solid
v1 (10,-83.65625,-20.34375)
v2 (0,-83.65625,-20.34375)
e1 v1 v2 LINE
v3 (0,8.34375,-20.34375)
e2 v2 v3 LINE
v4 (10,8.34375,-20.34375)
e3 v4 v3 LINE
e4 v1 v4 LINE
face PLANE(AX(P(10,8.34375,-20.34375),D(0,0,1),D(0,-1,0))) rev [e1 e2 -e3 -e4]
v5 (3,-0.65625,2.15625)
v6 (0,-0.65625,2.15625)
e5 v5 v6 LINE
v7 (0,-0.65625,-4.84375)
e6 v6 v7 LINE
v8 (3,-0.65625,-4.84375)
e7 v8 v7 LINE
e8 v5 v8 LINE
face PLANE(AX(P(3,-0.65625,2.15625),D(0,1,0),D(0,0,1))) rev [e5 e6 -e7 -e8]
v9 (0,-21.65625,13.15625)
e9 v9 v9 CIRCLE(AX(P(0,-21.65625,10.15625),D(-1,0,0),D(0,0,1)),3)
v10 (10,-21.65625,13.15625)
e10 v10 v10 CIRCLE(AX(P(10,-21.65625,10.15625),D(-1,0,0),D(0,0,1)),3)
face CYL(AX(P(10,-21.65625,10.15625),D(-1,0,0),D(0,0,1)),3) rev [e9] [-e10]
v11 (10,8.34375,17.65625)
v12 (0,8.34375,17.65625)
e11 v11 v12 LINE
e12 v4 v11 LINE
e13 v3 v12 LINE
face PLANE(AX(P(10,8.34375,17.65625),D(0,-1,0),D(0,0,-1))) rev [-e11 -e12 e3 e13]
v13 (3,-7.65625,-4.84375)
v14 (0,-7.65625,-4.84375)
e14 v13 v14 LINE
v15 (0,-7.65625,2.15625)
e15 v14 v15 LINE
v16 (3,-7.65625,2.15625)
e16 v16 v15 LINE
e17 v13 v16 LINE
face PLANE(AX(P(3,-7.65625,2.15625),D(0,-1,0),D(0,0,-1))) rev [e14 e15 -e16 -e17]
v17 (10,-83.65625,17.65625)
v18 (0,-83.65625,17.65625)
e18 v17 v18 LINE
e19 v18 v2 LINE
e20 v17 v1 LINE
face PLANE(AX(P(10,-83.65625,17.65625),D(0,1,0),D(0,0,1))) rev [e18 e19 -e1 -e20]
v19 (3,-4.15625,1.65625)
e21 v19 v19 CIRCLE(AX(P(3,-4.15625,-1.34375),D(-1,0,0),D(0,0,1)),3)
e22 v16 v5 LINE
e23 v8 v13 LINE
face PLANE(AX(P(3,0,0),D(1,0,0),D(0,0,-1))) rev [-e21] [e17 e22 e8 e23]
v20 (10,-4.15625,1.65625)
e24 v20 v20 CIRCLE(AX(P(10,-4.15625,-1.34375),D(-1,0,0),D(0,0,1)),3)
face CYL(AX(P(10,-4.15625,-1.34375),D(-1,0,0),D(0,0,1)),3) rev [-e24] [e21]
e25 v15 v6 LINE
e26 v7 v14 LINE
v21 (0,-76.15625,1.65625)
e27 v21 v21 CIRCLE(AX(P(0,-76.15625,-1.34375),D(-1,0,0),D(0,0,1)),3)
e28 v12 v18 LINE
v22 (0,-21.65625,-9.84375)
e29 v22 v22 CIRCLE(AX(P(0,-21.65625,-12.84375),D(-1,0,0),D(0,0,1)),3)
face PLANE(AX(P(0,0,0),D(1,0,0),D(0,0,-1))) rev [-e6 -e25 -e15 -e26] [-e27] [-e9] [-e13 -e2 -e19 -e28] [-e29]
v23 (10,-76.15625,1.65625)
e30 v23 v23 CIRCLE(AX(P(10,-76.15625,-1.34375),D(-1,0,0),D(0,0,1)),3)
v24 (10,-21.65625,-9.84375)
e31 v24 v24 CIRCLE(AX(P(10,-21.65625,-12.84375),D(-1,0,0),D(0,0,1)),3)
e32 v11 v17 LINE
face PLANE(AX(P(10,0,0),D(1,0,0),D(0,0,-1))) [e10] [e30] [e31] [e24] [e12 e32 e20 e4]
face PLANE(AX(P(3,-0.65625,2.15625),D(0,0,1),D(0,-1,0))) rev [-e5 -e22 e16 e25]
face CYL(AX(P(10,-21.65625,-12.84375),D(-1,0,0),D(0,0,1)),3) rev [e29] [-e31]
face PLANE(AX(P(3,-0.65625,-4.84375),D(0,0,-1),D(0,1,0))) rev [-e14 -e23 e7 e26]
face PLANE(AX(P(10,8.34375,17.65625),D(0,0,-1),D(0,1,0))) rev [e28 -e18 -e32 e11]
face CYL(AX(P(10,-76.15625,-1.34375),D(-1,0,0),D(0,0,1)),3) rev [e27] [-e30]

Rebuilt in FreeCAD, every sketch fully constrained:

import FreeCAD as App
import Part
import Sketcher

V = App.Vector

doc = App.newDocument("Part")
body = doc.addObject("PartDesign::Body", "Body")

# Sketch on YZ plane
sketch1 = body.newObject("Sketcher::SketchObject", "Sketch")
sketch1.AttachmentSupport = (doc.getObject("YZ_Plane"), [""])
sketch1.MapMode = "FlatFace"
sketch1.addGeometry(Part.LineSegment(V(8, 18, 0), V(-84, 18, 0)), False)
sketch1.addGeometry(Part.LineSegment(V(-84, 18, 0), V(-84, -20, 0)), False)
sketch1.addGeometry(Part.LineSegment(V(-84, -20, 0), V(8, -20, 0)), False)
sketch1.addGeometry(Part.LineSegment(V(8, -20, 0), V(8, 18, 0)), False)
sketch1.addConstraint(Sketcher.Constraint("Coincident", 0, 2, 1, 1))
sketch1.addConstraint(Sketcher.Constraint("Coincident", 1, 2, 2, 1))
sketch1.addConstraint(Sketcher.Constraint("Coincident", 2, 2, 3, 1))
sketch1.addConstraint(Sketcher.Constraint("Coincident", 3, 2, 0, 1))
sketch1.addConstraint(Sketcher.Constraint("Horizontal", 0))
sketch1.addConstraint(Sketcher.Constraint("Vertical", 1))
sketch1.addConstraint(Sketcher.Constraint("Horizontal", 2))
sketch1.addConstraint(Sketcher.Constraint("Vertical", 3))
sketch1.addConstraint(Sketcher.Constraint("DistanceX", 0, 2, 0, 1, 92.0))
sketch1.addConstraint(Sketcher.Constraint("DistanceY", 1, 2, 1, 1, 38.0))
sketch1.addConstraint(Sketcher.Constraint("DistanceX", 0, 2, -1, 1, 83.65625))
sketch1.addConstraint(Sketcher.Constraint("DistanceY", -1, 1, 0, 2, 17.65625))
pad1 = body.newObject("PartDesign::Pad", "Pad")
pad1.Profile = sketch1
pad1.Length = 10

# Sketch on YZ plane
sketch2 = body.newObject("Sketcher::SketchObject", "Sketch001")
sketch2.AttachmentSupport = (doc.getObject("YZ_Plane"), [""])
sketch2.MapMode = "FlatFace"
sketch2.addGeometry(Part.LineSegment(V(-1, -5, 0), V(-8, -5, 0)), False)
sketch2.addGeometry(Part.LineSegment(V(-8, -5, 0), V(-8, 2, 0)), False)
sketch2.addGeometry(Part.LineSegment(V(-8, 2, 0), V(-1, 2, 0)), False)
sketch2.addGeometry(Part.LineSegment(V(-1, 2, 0), V(-1, -5, 0)), False)
sketch2.addConstraint(Sketcher.Constraint("Coincident", 0, 2, 1, 1))
sketch2.addConstraint(Sketcher.Constraint("Coincident", 1, 2, 2, 1))
sketch2.addConstraint(Sketcher.Constraint("Coincident", 2, 2, 3, 1))
sketch2.addConstraint(Sketcher.Constraint("Coincident", 3, 2, 0, 1))
sketch2.addConstraint(Sketcher.Constraint("Horizontal", 0))
sketch2.addConstraint(Sketcher.Constraint("Vertical", 1))
sketch2.addConstraint(Sketcher.Constraint("Horizontal", 2))
sketch2.addConstraint(Sketcher.Constraint("Vertical", 3))
sketch2.addConstraint(Sketcher.Constraint("Equal", 2, 1))
sketch2.addConstraint(Sketcher.Constraint("DistanceX", 0, 2, 0, 1, 7.0))
sketch2.addConstraint(Sketcher.Constraint("DistanceX", 0, 2, -1, 1, 7.65625))
sketch2.addConstraint(Sketcher.Constraint("DistanceY", 0, 2, -1, 1, 4.84375))
pocket1 = body.newObject("PartDesign::Pocket", "Pocket")
pocket1.Profile = sketch2
pocket1.Length = 3
pocket1.Reversed = True

# Sketch on YZ plane
sketch3 = body.newObject("Sketcher::SketchObject", "Sketch002")
sketch3.AttachmentSupport = (doc.getObject("YZ_Plane"), [""])
sketch3.MapMode = "FlatFace"
sketch3.AttachmentOffset = App.Placement(V(0, 0, 3), App.Rotation())
sketch3.addGeometry(Part.Circle(V(-4.2, -1.3, 0), V(0, 0, 1), 3), False)
sketch3.addConstraint(Sketcher.Constraint("Diameter", 0, 6.0))
sketch3.addConstraint(Sketcher.Constraint("DistanceX", 0, 3, -1, 1, 4.15625))
sketch3.addConstraint(Sketcher.Constraint("DistanceY", 0, 3, -1, 1, 1.34375))
pocket2 = body.newObject("PartDesign::Pocket", "Pocket001")
pocket2.Profile = sketch3
pocket2.Type = "ThroughAll"
pocket2.Reversed = True

# Sketch on YZ plane
sketch4 = body.newObject("Sketcher::SketchObject", "Sketch003")
sketch4.AttachmentSupport = (doc.getObject("YZ_Plane"), [""])
sketch4.MapMode = "FlatFace"
sketch4.addGeometry(Part.Circle(V(-76.2, -1.3, 0), V(0, 0, 1), 3), False)
sketch4.addConstraint(Sketcher.Constraint("Diameter", 0, 6.0))
sketch4.addConstraint(Sketcher.Constraint("DistanceX", 0, 3, -1, 1, 76.15625))
sketch4.addConstraint(Sketcher.Constraint("DistanceY", 0, 3, -1, 1, 1.34375))
pocket3 = body.newObject("PartDesign::Pocket", "Pocket002")
pocket3.Profile = sketch4
pocket3.Type = "ThroughAll"
pocket3.Reversed = True

# Sketch on YZ plane
sketch5 = body.newObject("Sketcher::SketchObject", "Sketch004")
sketch5.AttachmentSupport = (doc.getObject("YZ_Plane"), [""])
sketch5.MapMode = "FlatFace"
sketch5.addGeometry(Part.Circle(V(-21.7, 10.2, 0), V(0, 0, 1), 3), False)
sketch5.addGeometry(Part.Circle(V(-21.7, -12.8, 0), V(0, 0, 1), 3), False)
sketch5.addConstraint(Sketcher.Constraint("Equal", 0, 1))
sketch5.addConstraint(Sketcher.Constraint("Vertical", 0, 3, 1, 3))
sketch5.addConstraint(Sketcher.Constraint("Diameter", 0, 6.0))
sketch5.addConstraint(Sketcher.Constraint("DistanceY", 1, 3, 0, 3, 23.0))
sketch5.addConstraint(Sketcher.Constraint("DistanceX", 0, 3, -1, 1, 21.65625))
sketch5.addConstraint(Sketcher.Constraint("DistanceY", -1, 1, 0, 3, 10.15625))
pocket4 = body.newObject("PartDesign::Pocket", "Pocket003")
pocket4.Profile = sketch5
pocket4.Type = "ThroughAll"
pocket4.Reversed = True

doc.recompute()
